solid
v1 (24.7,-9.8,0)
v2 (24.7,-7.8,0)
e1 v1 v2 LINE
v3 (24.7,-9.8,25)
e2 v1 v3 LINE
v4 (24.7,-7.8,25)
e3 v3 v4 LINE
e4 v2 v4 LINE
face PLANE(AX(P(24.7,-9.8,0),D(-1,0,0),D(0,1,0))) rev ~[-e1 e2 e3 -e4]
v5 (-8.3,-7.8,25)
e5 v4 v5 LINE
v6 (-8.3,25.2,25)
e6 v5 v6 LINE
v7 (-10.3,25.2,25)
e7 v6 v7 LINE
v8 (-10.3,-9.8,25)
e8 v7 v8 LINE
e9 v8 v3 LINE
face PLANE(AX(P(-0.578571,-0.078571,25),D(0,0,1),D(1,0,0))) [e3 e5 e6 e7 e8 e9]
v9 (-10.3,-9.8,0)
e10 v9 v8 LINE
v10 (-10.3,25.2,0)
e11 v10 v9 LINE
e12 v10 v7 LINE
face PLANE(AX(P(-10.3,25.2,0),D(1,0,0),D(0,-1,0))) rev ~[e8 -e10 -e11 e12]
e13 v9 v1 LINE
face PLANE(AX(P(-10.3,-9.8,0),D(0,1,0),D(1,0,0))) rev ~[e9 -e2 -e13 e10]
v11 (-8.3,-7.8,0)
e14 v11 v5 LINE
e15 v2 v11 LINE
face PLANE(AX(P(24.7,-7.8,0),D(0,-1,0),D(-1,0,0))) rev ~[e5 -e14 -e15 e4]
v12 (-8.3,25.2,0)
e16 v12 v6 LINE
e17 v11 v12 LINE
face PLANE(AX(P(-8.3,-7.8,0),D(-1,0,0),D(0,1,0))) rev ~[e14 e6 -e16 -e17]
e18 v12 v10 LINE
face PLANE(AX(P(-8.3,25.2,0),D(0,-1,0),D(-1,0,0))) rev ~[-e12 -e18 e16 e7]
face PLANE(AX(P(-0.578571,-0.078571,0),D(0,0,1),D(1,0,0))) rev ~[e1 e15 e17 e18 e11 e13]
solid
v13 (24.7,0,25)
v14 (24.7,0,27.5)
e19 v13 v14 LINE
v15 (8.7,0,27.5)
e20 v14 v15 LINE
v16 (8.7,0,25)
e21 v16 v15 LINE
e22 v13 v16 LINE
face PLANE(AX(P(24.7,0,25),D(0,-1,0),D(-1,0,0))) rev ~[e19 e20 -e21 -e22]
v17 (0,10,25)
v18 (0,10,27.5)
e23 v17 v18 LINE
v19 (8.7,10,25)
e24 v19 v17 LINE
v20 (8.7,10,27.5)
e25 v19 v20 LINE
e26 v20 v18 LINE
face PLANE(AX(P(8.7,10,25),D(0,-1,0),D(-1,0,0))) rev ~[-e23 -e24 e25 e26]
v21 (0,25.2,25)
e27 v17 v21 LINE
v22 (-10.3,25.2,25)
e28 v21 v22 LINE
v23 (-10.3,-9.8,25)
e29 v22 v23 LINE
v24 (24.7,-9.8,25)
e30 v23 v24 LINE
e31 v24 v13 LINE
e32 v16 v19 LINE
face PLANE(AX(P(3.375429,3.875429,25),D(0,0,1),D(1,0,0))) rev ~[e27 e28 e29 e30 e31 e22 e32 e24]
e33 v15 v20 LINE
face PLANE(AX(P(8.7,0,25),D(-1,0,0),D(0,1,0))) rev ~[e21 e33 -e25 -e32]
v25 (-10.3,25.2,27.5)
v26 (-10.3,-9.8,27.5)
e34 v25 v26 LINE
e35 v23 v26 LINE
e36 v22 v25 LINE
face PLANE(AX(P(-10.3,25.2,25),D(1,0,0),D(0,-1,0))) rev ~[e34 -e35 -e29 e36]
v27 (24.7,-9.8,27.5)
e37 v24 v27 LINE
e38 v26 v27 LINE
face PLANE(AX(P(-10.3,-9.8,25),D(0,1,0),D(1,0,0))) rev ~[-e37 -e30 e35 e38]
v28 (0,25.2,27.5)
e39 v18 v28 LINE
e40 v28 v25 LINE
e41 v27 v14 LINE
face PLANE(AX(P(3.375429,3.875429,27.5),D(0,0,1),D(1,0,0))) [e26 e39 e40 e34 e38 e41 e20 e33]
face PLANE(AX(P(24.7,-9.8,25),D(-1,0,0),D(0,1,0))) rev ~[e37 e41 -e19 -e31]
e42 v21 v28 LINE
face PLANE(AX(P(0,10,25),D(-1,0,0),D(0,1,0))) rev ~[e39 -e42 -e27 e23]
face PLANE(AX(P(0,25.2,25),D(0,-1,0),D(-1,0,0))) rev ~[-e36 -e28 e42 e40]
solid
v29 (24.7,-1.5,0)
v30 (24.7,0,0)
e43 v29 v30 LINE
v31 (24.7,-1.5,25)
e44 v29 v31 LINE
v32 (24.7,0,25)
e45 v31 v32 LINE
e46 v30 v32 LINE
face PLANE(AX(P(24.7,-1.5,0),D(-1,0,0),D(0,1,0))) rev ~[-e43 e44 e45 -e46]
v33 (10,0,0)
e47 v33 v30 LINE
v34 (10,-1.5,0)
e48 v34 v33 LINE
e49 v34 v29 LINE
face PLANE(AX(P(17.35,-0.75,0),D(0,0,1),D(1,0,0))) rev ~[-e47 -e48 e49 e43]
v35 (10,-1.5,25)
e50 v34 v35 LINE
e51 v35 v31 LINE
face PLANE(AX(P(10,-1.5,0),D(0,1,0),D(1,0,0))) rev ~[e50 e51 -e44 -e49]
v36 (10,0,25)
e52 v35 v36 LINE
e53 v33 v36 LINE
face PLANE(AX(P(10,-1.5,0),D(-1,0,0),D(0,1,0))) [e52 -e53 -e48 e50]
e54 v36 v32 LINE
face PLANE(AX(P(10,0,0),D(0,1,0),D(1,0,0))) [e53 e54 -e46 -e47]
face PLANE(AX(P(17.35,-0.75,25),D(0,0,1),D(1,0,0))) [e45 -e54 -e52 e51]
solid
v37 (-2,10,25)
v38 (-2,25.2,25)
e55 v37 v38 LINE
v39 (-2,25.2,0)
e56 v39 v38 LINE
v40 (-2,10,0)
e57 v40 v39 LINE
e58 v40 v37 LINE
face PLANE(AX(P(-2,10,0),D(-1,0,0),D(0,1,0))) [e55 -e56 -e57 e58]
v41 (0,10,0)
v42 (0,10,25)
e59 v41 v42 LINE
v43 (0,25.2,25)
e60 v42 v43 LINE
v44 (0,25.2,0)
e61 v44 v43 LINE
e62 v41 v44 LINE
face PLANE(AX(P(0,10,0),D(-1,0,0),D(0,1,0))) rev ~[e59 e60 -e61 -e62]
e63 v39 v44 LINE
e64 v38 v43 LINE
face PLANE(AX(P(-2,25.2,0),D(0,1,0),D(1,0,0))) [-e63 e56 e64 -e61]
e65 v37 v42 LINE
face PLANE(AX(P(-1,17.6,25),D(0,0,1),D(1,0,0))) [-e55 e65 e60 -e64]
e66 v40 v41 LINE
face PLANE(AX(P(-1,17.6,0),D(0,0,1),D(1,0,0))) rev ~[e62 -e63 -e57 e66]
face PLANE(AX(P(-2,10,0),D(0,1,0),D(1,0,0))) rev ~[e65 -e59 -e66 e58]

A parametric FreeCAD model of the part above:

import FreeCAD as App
import Part
import Sketcher

V = App.Vector


def add_polygon(sketch, points):
    """Adds a closed chain of lines whose ends are joined by coincident constraints."""
    first, n = sketch.GeometryCount, len(points)
    for a, b in zip(points, points[1:] + points[:1]):
        sketch.addGeometry(Part.LineSegment(App.Vector(*a, 0), App.Vector(*b, 0)), False)
    for i in range(n):
        sketch.addConstraint(Sketcher.Constraint("Coincident", first + i, 2, first + (i + 1) % n, 1))

doc = App.newDocument("Part")
body = doc.addObject("PartDesign::Body", "Body")
body.AllowCompound = True

# Sketch on XY plane
sketch1 = body.newObject("Sketcher::SketchObject", "Sketch")
sketch1.AttachmentSupport = (doc.getObject("XY_Plane"), [""])
sketch1.MapMode = "FlatFace"
add_polygon(sketch1, [(-8.3, 25.2), (-10.3, 25.2), (-10.3, -9.8), (24.7, -9.8), (24.7, -7.8), (-8.3, -7.8)])  # lines 0-5
add_polygon(sketch1, [(10, 0), (10, -1.5), (24.7, -1.5), (24.7, 0)])  # lines 6-9
add_polygon(sketch1, [(-2, 25.2), (-2, 10), (0, 10), (0, 25.2)])  # lines 10-13
sketch1.addConstraint([
    Sketcher.Constraint("Horizontal", 0),
    Sketcher.Constraint("Vertical", 1),
    Sketcher.Constraint("Horizontal", 2),
    Sketcher.Constraint("Vertical", 3),
    Sketcher.Constraint("Horizontal", 4),
    Sketcher.Constraint("Vertical", 5),
    Sketcher.Constraint("Vertical", 6),
    Sketcher.Constraint("Horizontal", 7),
    Sketcher.Constraint("Vertical", 8),
    Sketcher.Constraint("Horizontal", 9),
    Sketcher.Constraint("Vertical", 10),
    Sketcher.Constraint("Horizontal", 11),
    Sketcher.Constraint("Vertical", 12),
    Sketcher.Constraint("Horizontal", 13),
    Sketcher.Constraint("PointOnObject", 8, 2, -1),
    Sketcher.Constraint("PointOnObject", 11, 2, -2),
    Sketcher.Constraint("Horizontal", 5, 2, 12, 2),
    Sketcher.Constraint("Vertical", 3, 2, 7, 2),
    Sketcher.Constraint("Equal", 0, 11),
    Sketcher.Constraint("Equal", 2, 1),
    Sketcher.Constraint("Equal", 13, 3),
    Sketcher.Constraint("DistanceX", 0, 2, 0, 1, 2.0),
    Sketcher.Constraint("DistanceX", 2, 1, 2, 2, 35.0),
    Sketcher.Constraint("DistanceX", 7, 1, 7, 2, 14.7),
    Sketcher.Constraint("DistanceY", 6, 2, 6, 1, 1.5),
    Sketcher.Constraint("DistanceY", 10, 2, 10, 1, 15.2),
    Sketcher.Constraint("DistanceX", -1, 1, 6, 2, 10.0),
    Sketcher.Constraint("DistanceY", -1, 1, 10, 2, 10.0),
])
pad1 = body.newObject("PartDesign::Pad", "Pad")
pad1.Profile = sketch1
pad1.Length = 25
body2 = doc.addObject("PartDesign::Body", "Body001")

# Sketch on XY plane
sketch2 = body2.newObject("Sketcher::SketchObject", "Sketch001")
sketch2.AttachmentSupport = (doc.getObject("XY_Plane001"), [""])
sketch2.MapMode = "FlatFace"
sketch2.AttachmentOffset = App.Placement(V(0, 0, 25), App.Rotation())
add_polygon(sketch2, [(0, 25), (-10, 25), (-10, -10), (25, -10), (25, 0), (9, 0), (9, 10), (0, 10)])  # lines 0-7
sketch2.addConstraint([
    Sketcher.Constraint("Horizontal", 0),
    Sketcher.Constraint("Vertical", 1),
    Sketcher.Constraint("Horizontal", 2),
    Sketcher.Constraint("Vertical", 3),
    Sketcher.Constraint("Horizontal", 4),
    Sketcher.Constraint("Vertical", 5),
    Sketcher.Constraint("Horizontal", 6),
    Sketcher.Constraint("Vertical", 7),
    Sketcher.Constraint("PointOnObject", 3, 2, -1),
    Sketcher.Constraint("PointOnObject", 6, 2, -2),
    Sketcher.Constraint("Equal", 2, 1),
    Sketcher.Constraint("DistanceX", 2, 1, 2, 2, 35.0),
    Sketcher.Constraint("DistanceX", 4, 2, 4, 1, 16.0),
    Sketcher.Constraint("DistanceY", 5, 1, 5, 2, 10.0),
    Sketcher.Constraint("DistanceX", 0, 2, 0, 1, 10.3),
    Sketcher.Constraint("DistanceY", 3, 1, 3, 2, 9.8),
])
pad2 = body2.newObject("PartDesign::Pad", "Pad001")
pad2.Profile = sketch2
pad2.Length = 2.5

doc.recompute()
